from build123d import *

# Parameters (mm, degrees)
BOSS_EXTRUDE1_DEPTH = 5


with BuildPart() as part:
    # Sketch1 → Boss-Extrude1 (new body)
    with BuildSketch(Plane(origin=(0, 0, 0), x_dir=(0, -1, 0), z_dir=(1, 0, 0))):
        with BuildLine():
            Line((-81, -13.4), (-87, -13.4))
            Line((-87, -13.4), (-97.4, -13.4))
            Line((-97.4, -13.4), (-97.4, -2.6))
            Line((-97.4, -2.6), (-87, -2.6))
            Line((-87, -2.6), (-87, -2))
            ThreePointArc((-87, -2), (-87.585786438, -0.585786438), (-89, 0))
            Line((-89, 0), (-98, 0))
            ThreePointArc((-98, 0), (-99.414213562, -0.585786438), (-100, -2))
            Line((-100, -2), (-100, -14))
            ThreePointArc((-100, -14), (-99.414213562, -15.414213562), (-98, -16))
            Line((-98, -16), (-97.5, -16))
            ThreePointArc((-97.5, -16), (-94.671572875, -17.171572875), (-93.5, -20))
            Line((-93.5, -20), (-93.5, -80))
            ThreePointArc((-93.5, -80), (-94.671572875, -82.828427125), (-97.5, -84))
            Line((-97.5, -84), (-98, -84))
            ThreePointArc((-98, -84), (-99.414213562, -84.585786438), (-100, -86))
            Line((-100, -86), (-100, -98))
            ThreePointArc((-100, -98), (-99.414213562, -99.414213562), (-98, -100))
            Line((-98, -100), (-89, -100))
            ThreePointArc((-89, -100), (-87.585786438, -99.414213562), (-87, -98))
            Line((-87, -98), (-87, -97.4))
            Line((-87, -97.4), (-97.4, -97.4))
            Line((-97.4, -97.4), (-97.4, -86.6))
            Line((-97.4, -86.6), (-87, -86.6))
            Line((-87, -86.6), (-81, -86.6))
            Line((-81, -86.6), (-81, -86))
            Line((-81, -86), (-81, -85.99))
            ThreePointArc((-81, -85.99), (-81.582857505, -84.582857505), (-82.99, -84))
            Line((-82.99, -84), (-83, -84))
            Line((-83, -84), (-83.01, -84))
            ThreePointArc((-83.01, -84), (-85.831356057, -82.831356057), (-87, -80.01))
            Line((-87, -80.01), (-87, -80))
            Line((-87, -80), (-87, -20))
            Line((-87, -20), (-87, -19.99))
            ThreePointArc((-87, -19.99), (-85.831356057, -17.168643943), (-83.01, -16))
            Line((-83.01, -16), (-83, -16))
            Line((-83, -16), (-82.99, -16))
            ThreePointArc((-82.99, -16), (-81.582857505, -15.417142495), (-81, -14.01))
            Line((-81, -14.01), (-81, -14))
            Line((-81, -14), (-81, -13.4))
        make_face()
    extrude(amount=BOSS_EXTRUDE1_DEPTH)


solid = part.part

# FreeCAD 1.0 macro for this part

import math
import FreeCAD as App
import Part
import Sketcher

doc = App.newDocument("Part")
body = doc.addObject("PartDesign::Body", "Body")

sketch1 = body.newObject("Sketcher::SketchObject", "Sketch")
sketch1.AttachmentSupport = (doc.getObject("YZ_Plane"), [""])
sketch1.MapMode = "FlatFace"
sketch1.addGeometry([
    Part.LineSegment(App.Vector(81, 13.4, 0), App.Vector(97.4, 13.4, 0)),
    Part.LineSegment(App.Vector(97.4, 13.4, 0), App.Vector(97.4, 2.6, 0)),
    Part.LineSegment(App.Vector(97.4, 2.6, 0), App.Vector(87, 2.6, 0)),
    Part.LineSegment(App.Vector(87, 2.6, 0), App.Vector(87, 2, 0)),
    Part.ArcOfCircle(Part.Circle(App.Vector(89, 2, 0), App.Vector(0, 0, 1), 2), math.radians(-180), math.radians(-90)),
    Part.LineSegment(App.Vector(89, 0, 0), App.Vector(98, 0, 0)),
    Part.ArcOfCircle(Part.Circle(App.Vector(98, 2, 0), App.Vector(0, 0, 1), 2), math.radians(-90), math.radians(0)),
    Part.LineSegment(App.Vector(100, 2, 0), App.Vector(100, 14, 0)),
    Part.ArcOfCircle(Part.Circle(App.Vector(98, 14, 0), App.Vector(0, 0, 1), 2), math.radians(0), math.radians(90)),
    Part.LineSegment(App.Vector(98, 16, 0), App.Vector(97.5, 16, 0)),
    Part.ArcOfCircle(Part.Circle(App.Vector(97.5, 20, 0), App.Vector(0, 0, 1), 4), math.radians(180), math.radians(270)),
    Part.LineSegment(App.Vector(93.5, 20, 0), App.Vector(93.5, 80, 0)),
    Part.ArcOfCircle(Part.Circle(App.Vector(97.5, 80, 0), App.Vector(0, 0, 1), 4), math.radians(90), math.radians(180)),
    Part.LineSegment(App.Vector(97.5, 84, 0), App.Vector(98, 84, 0)),
    Part.ArcOfCircle(Part.Circle(App.Vector(98, 86, 0), App.Vector(0, 0, 1), 2), math.radians(-90), math.radians(0)),
    Part.LineSegment(App.Vector(100, 86, 0), App.Vector(100, 98, 0)),
    Part.ArcOfCircle(Part.Circle(App.Vector(98, 98, 0), App.Vector(0, 0, 1), 2), math.radians(0), math.radians(90)),
    Part.LineSegment(App.Vector(98, 100, 0), App.Vector(89, 100, 0)),
    Part.ArcOfCircle(Part.Circle(App.Vector(89, 98, 0), App.Vector(0, 0, 1), 2), math.radians(90), math.radians(180)),
    Part.LineSegment(App.Vector(87, 98, 0), App.Vector(87, 97.4, 0)),
    Part.LineSegment(App.Vector(87, 97.4, 0), App.Vector(97.4, 97.4, 0)),
    Part.LineSegment(App.Vector(97.4, 97.4, 0), App.Vector(97.4, 86.6, 0)),
    Part.LineSegment(App.Vector(97.4, 86.6, 0), App.Vector(81, 86.6, 0)),
    Part.LineSegment(App.Vector(81, 86.6, 0), App.Vector(81, 85.99, 0)),
    Part.ArcOfCircle(Part.Circle(App.Vector(82.99, 85.99, 0), App.Vector(0, 0, 1), 1.99), math.radians(180), math.radians(270)),
    Part.LineSegment(App.Vector(82.99, 84, 0), App.Vector(83.01, 84, 0)),
    Part.ArcOfCircle(Part.Circle(App.Vector(83.01, 80.01, 0), App.Vector(0, 0, 1), 3.99), math.radians(0), math.radians(90)),
    Part.LineSegment(App.Vector(87, 80.01, 0), App.Vector(87, 19.99, 0)),
    Part.ArcOfCircle(Part.Circle(App.Vector(83.01, 19.99, 0), App.Vector(0, 0, 1), 3.99), math.radians(-90), math.radians(0)),
    Part.LineSegment(App.Vector(83.01, 16, 0), App.Vector(82.99, 16, 0)),
    Part.ArcOfCircle(Part.Circle(App.Vector(82.99, 14.01, 0), App.Vector(0, 0, 1), 1.99), math.radians(90), math.radians(180)),
    Part.LineSegment(App.Vector(81, 14.01, 0), App.Vector(81, 13.4, 0)),
], False)
sketch1.addConstraint([
    Sketcher.Constraint("Coincident", 0, 2, 1, 1),
    Sketcher.Constraint("Coincident", 1, 2, 2, 1),
    Sketcher.Constraint("Coincident", 2, 2, 3, 1),
    Sketcher.Constraint("Tangent", 3, 2, 4, 1),
    Sketcher.Constraint("Tangent", 4, 2, 5, 1),
    Sketcher.Constraint("Tangent", 5, 2, 6, 1),
    Sketcher.Constraint("Tangent", 6, 2, 7, 1),
    Sketcher.Constraint("Tangent", 7, 2, 8, 1),
    Sketcher.Constraint("Tangent", 8, 2, 9, 1),
    Sketcher.Constraint("Tangent", 9, 2, 10, 2),
    Sketcher.Constraint("Tangent", 10, 1, 11, 1),
    Sketcher.Constraint("Tangent", 11, 2, 12, 2),
    Sketcher.Constraint("Tangent", 12, 1, 13, 1),
    Sketcher.Constraint("Tangent", 13, 2, 14, 1),
    Sketcher.Constraint("Tangent", 14, 2, 15, 1),
    Sketcher.Constraint("Tangent", 15, 2, 16, 1),
    Sketcher.Constraint("Tangent", 16, 2, 17, 1),
    Sketcher.Constraint("Tangent", 17, 2, 18, 1),
    Sketcher.Constraint("Tangent", 18, 2, 19, 1),
    Sketcher.Constraint("Coincident", 19, 2, 20, 1),
    Sketcher.Constraint("Coincident", 20, 2, 21, 1),
    Sketcher.Constraint("Coincident", 21, 2, 22, 1),
    Sketcher.Constraint("Coincident", 22, 2, 23, 1),
    Sketcher.Constraint("Tangent", 23, 2, 24, 1),
    Sketcher.Constraint("Tangent", 24, 2, 25, 1),
    Sketcher.Constraint("Tangent", 25, 2, 26, 2),
    Sketcher.Constraint("Tangent", 26, 1, 27, 1),
    Sketcher.Constraint("Tangent", 27, 2, 28, 2),
    Sketcher.Constraint("Tangent", 28, 1, 29, 1),
    Sketcher.Constraint("Tangent", 29, 2, 30, 1),
    Sketcher.Constraint("Tangent", 30, 2, 31, 1),
    Sketcher.Constraint("Coincident", 31, 2, 0, 1),
    Sketcher.Constraint("Horizontal", 0),
    Sketcher.Constraint("Vertical", 1),
    Sketcher.Constraint("Horizontal", 2),
    Sketcher.Constraint("Vertical", 3),
    Sketcher.Constraint("Horizontal", 5),
    Sketcher.Constraint("Vertical", 7),
    Sketcher.Constraint("Horizontal", 9),
    Sketcher.Constraint("Vertical", 11),
    Sketcher.Constraint("Horizontal", 13),
    Sketcher.Constraint("Vertical", 15),
    Sketcher.Constraint("Horizontal", 17),
    Sketcher.Constraint("Vertical", 19),
    Sketcher.Constraint("Horizontal", 20),
    Sketcher.Constraint("Vertical", 21),
    Sketcher.Constraint("Horizontal", 22),
    Sketcher.Constraint("Vertical", 23),
    Sketcher.Constraint("Horizontal", 25),
    Sketcher.Constraint("Vertical", 27),
    Sketcher.Constraint("Horizontal", 29),
    Sketcher.Constraint("Vertical", 31),
    Sketcher.Constraint("Equal", 4, 6),
    Sketcher.Constraint("Equal", 6, 8),
    Sketcher.Constraint("Equal", 10, 12),
    Sketcher.Constraint("Equal", 8, 14),
    Sketcher.Constraint("Equal", 14, 16),
    Sketcher.Constraint("Equal", 16, 18),
    Sketcher.Constraint("Equal", 26, 28),
    Sketcher.Constraint("Equal", 24, 30),
    Sketcher.Constraint("PointOnObject", 4, 2, -1),
    Sketcher.Constraint("Horizontal", 13, 2, 24, 2),
    Sketcher.Constraint("Horizontal", 9, 2, 28, 1),
    Sketcher.Constraint("Vertical", 8, 3, 14, 3),
    Sketcher.Constraint("Vertical", 4, 3, 18, 3),
    Sketcher.Constraint("Vertical", 24, 3, 30, 3),
    Sketcher.Constraint("Vertical", 1, 2, 20, 2),
    Sketcher.Constraint("Vertical", 19, 2, 26, 1),
    Sketcher.Constraint("Equal", 7, 15),
    Sketcher.Constraint("Equal", 3, 19),
    Sketcher.Constraint("Equal", 1, 21),
    Sketcher.Constraint("Radius", 4, 2.0),
    Sketcher.Constraint("Radius", 10, 4.0),
    Sketcher.Constraint("DistanceX", 5, 1, 5, 2, 9.0),
    Sketcher.Constraint("DistanceY", 7, 1, 7, 2, 12.0),
    Sketcher.Constraint("DistanceY", 11, 1, 11, 2, 60.0),
    Sketcher.Constraint("Radius", 24, 1.99),
    Sketcher.Constraint("Radius", 26, 3.99),
    Sketcher.Constraint("DistanceX", 0, 1, 0, 2, 16.4),
    Sketcher.Constraint("DistanceX", 2, 2, 2, 1, 10.4),
    Sketcher.Constraint("DistanceX", 9, 2, 9, 1, 0.5),
    Sketcher.Constraint("DistanceY", 1, 2, 1, 1, 10.8),
    Sketcher.Constraint("DistanceY", 3, 2, 3, 1, 0.6),
    Sketcher.Constraint("DistanceX", -1, 1, 4, 3, 89.0),
])
pad1 = body.newObject("PartDesign::Pad", "Pad")
pad1.Profile = sketch1
pad1.Length = 5

doc.recompute()
